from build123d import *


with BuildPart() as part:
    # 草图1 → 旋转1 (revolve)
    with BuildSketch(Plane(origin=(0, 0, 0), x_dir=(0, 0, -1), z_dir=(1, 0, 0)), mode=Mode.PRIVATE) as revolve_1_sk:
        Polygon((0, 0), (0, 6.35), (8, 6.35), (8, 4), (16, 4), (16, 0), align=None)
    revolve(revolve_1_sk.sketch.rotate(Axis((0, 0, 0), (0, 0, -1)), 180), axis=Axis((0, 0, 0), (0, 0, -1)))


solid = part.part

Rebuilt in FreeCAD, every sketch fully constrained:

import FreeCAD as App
import Part
import Sketcher
Q = App.Units.Quantity

doc = App.newDocument("Part")
body = doc.addObject("PartDesign::Body", "Body")

# Sketch on YZ plane
sketch1 = body.newObject("Sketcher::SketchObject", "Sketch")
sketch1.AttachmentSupport = (doc.getObject("YZ_Plane"), [""])
sketch1.MapMode = "FlatFace"
sketch1.addGeometry([
    Part.LineSegment(App.Vector(6.35, 0, 0), App.Vector(0, 0, 0)),  # 0
    Part.LineSegment(App.Vector(0, 0, 0), App.Vector(0, -16, 0)),  # 1
    Part.LineSegment(App.Vector(0, -16, 0), App.Vector(4, -16, 0)),  # 2
    Part.LineSegment(App.Vector(4, -16, 0), App.Vector(4, -8, 0)),  # 3
    Part.LineSegment(App.Vector(4, -8, 0), App.Vector(6.35, -8, 0)),  # 4
    Part.LineSegment(App.Vector(6.35, -8, 0), App.Vector(6.35, 0, 0)),  # 5
], False)
sketch1.addConstraint([
    Sketcher.Constraint("Coincident", 0, 2, 1, 1),
    Sketcher.Constraint("Coincident", 1, 2, 2, 1),
    Sketcher.Constraint("Coincident", 2, 2, 3, 1),
    Sketcher.Constraint("Coincident", 3, 2, 4, 1),
    Sketcher.Constraint("Coincident", 4, 2, 5, 1),
    Sketcher.Constraint("Coincident", 5, 2, 0, 1),
    Sketcher.Constraint("Horizontal", 0),
    Sketcher.Constraint("Vertical", 1),
    Sketcher.Constraint("Horizontal", 2),
    Sketcher.Constraint("Vertical", 3),
    Sketcher.Constraint("Horizontal", 4),
    Sketcher.Constraint("Vertical", 5),
    Sketcher.Constraint("Coincident", 0, 2, -1, 1),
    Sketcher.Constraint("Equal", 3, 5),
    Sketcher.Constraint("DistanceX", 2, 1, 2, 2, Q("4 mm")),
    Sketcher.Constraint("DistanceY", 1, 2, 1, 1, Q("16 mm")),
    Sketcher.Constraint("DistanceX", 0, 2, 0, 1, Q("6.35 mm")),
])
revolution = body.newObject("PartDesign::Revolution", "Revolution")
revolution.Profile = sketch1
revolution.ReferenceAxis = (sketch1, ["V_Axis"])
revolution.Angle = 360

doc.recompute()
